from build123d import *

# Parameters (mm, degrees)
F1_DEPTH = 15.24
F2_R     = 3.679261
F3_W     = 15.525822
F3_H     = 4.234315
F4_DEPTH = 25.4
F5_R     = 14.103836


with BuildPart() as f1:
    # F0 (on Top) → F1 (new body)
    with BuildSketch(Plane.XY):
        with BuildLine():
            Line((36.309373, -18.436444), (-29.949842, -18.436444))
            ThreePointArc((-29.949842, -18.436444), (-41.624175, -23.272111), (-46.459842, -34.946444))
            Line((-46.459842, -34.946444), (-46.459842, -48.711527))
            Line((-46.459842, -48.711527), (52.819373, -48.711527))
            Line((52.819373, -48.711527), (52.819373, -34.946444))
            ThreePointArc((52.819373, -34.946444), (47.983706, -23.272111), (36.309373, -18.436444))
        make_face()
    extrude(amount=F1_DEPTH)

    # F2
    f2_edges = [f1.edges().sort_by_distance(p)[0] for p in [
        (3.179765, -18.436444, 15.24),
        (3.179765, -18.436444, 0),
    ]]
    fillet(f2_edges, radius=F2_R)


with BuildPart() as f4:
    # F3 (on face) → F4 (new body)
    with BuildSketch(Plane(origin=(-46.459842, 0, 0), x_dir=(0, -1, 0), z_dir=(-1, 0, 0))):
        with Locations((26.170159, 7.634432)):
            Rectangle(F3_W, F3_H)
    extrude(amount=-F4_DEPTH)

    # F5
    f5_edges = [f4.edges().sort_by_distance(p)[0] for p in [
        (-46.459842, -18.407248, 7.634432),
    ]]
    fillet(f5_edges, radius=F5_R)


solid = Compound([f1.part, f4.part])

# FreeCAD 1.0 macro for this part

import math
import FreeCAD as App
import Part
import Sketcher

V = App.Vector
Q = App.Units.Quantity


def edges_at(feature, points):
    """Names of the edges that pass closest to the given points."""
    edges = feature.Shape.Edges
    near = lambda p: min(range(len(edges)), key=lambda i: edges[i].distToShape(Part.Vertex(*p))[0])
    return sorted({f"Edge{near(p) + 1}" for p in points})


def add_polygon(sketch, points):
    """Adds a closed chain of lines whose ends are joined by coincident constraints."""
    first, n = sketch.GeometryCount, len(points)
    for a, b in zip(points, points[1:] + points[:1]):
        sketch.addGeometry(Part.LineSegment(App.Vector(*a, 0), App.Vector(*b, 0)), False)
    for i in range(n):
        sketch.addConstraint(Sketcher.Constraint("Coincident", first + i, 2, first + (i + 1) % n, 1))

doc = App.newDocument("Part")
body = doc.addObject("PartDesign::Body", "Body")

# Sketch on XY plane
sketch1 = doc.addObject("Sketcher::SketchObject", "Sketch")
body.addObject(sketch1)
sketch1.AttachmentSupport = (doc.XY_Plane, [""])
sketch1.MapMode = "FlatFace"
sketch1.addGeometry(Part.LineSegment(V(36, -18, 0), V(-30, -18, 0)), False)
sketch1.addGeometry(Part.ArcOfCircle(Part.Circle(V(-30, -35, 0), V(0, 0, 1), 17), math.radians(90), math.radians(180)), False)
sketch1.addGeometry(Part.LineSegment(V(-46, -35, 0), V(-46, -49, 0)), False)
sketch1.addGeometry(Part.LineSegment(V(-46, -49, 0), V(53, -49, 0)), False)
sketch1.addGeometry(Part.LineSegment(V(53, -49, 0), V(53, -35, 0)), False)
sketch1.addGeometry(Part.ArcOfCircle(Part.Circle(V(36, -35, 0), V(0, 0, 1), 17), math.radians(0), math.radians(90)), False)
sketch1.addConstraint(Sketcher.Constraint("Tangent", 0, 2, 1, 1))
sketch1.addConstraint(Sketcher.Constraint("Tangent", 1, 2, 2, 1))
sketch1.addConstraint(Sketcher.Constraint("Coincident", 2, 2, 3, 1))
sketch1.addConstraint(Sketcher.Constraint("Coincident", 3, 2, 4, 1))
sketch1.addConstraint(Sketcher.Constraint("Tangent", 4, 2, 5, 1))
sketch1.addConstraint(Sketcher.Constraint("Tangent", 5, 2, 0, 1))
sketch1.addConstraint(Sketcher.Constraint("Horizontal", 0))
sketch1.addConstraint(Sketcher.Constraint("Vertical", 2))
sketch1.addConstraint(Sketcher.Constraint("Horizontal", 3))
sketch1.addConstraint(Sketcher.Constraint("Vertical", 4))
sketch1.addConstraint(Sketcher.Constraint("Equal", 1, 5))
sketch1.addConstraint(Sketcher.Constraint("Radius", 1, Q("0.65 in")))
sketch1.addConstraint(Sketcher.Constraint("DistanceX", 0, 2, 0, 1, 66.259215))
sketch1.addConstraint(Sketcher.Constraint("DistanceY", 2, 2, 2, 1, 13.765083))
sketch1.addConstraint(Sketcher.Constraint("DistanceX", 1, 3, -1, 1, 29.949842))
sketch1.addConstraint(Sketcher.Constraint("DistanceY", 1, 3, -1, 1, 34.946444))
pad1 = doc.addObject("PartDesign::Pad", "Pad")
body.addObject(pad1)
pad1.Profile = sketch1
pad1.Length = Q("0.6 in")
doc.recompute()

fillet = doc.addObject("PartDesign::Fillet", "Fillet")
body.addObject(fillet)
fillet.Base = (pad1, edges_at(pad1, [(3.18, -18.436, 15.24), (3.18, -18.436, 0)]))
fillet.Radius = 3.679261
body2 = doc.addObject("PartDesign::Body", "Body001")

# Sketch on YZ plane
sketch2 = doc.addObject("Sketcher::SketchObject", "Sketch001")
body2.addObject(sketch2)
sketch2.AttachmentSupport = (doc.getObject("YZ_Plane001"), [""])
sketch2.MapMode = "FlatFace"
sketch2.AttachmentOffset = App.Placement(V(0, 0, -46.459842), App.Rotation())
add_polygon(sketch2, [(-18.4, 9.8), (-18.4, 5.5), (-33.9, 5.5), (-33.9, 9.8)])  # lines 0-3
sketch2.addConstraint(Sketcher.Constraint("Vertical", 0))
sketch2.addConstraint(Sketcher.Constraint("Horizontal", 1))
sketch2.addConstraint(Sketcher.Constraint("Vertical", 2))
sketch2.addConstraint(Sketcher.Constraint("Horizontal", 3))
sketch2.addConstraint(Sketcher.Constraint("DistanceX", 1, 2, 1, 1, 15.525822))
sketch2.addConstraint(Sketcher.Constraint("DistanceY", 0, 2, 0, 1, 4.234315))
sketch2.addConstraint(Sketcher.Constraint("DistanceX", 1, 2, -1, 1, 33.93307))
sketch2.addConstraint(Sketcher.Constraint("DistanceY", -1, 1, 2, 2, 9.751589))
pad2 = doc.addObject("PartDesign::Pad", "Pad001")
body2.addObject(pad2)
pad2.Profile = sketch2
pad2.Length = Q("1 in")
doc.recompute()

fillet2 = doc.addObject("PartDesign::Fillet", "Fillet001")
body2.addObject(fillet2)
fillet2.Base = (pad2, edges_at(pad2, [(-46.46, -18.407, 7.634)]))
fillet2.Radius = 14.103836

doc.recompute()
